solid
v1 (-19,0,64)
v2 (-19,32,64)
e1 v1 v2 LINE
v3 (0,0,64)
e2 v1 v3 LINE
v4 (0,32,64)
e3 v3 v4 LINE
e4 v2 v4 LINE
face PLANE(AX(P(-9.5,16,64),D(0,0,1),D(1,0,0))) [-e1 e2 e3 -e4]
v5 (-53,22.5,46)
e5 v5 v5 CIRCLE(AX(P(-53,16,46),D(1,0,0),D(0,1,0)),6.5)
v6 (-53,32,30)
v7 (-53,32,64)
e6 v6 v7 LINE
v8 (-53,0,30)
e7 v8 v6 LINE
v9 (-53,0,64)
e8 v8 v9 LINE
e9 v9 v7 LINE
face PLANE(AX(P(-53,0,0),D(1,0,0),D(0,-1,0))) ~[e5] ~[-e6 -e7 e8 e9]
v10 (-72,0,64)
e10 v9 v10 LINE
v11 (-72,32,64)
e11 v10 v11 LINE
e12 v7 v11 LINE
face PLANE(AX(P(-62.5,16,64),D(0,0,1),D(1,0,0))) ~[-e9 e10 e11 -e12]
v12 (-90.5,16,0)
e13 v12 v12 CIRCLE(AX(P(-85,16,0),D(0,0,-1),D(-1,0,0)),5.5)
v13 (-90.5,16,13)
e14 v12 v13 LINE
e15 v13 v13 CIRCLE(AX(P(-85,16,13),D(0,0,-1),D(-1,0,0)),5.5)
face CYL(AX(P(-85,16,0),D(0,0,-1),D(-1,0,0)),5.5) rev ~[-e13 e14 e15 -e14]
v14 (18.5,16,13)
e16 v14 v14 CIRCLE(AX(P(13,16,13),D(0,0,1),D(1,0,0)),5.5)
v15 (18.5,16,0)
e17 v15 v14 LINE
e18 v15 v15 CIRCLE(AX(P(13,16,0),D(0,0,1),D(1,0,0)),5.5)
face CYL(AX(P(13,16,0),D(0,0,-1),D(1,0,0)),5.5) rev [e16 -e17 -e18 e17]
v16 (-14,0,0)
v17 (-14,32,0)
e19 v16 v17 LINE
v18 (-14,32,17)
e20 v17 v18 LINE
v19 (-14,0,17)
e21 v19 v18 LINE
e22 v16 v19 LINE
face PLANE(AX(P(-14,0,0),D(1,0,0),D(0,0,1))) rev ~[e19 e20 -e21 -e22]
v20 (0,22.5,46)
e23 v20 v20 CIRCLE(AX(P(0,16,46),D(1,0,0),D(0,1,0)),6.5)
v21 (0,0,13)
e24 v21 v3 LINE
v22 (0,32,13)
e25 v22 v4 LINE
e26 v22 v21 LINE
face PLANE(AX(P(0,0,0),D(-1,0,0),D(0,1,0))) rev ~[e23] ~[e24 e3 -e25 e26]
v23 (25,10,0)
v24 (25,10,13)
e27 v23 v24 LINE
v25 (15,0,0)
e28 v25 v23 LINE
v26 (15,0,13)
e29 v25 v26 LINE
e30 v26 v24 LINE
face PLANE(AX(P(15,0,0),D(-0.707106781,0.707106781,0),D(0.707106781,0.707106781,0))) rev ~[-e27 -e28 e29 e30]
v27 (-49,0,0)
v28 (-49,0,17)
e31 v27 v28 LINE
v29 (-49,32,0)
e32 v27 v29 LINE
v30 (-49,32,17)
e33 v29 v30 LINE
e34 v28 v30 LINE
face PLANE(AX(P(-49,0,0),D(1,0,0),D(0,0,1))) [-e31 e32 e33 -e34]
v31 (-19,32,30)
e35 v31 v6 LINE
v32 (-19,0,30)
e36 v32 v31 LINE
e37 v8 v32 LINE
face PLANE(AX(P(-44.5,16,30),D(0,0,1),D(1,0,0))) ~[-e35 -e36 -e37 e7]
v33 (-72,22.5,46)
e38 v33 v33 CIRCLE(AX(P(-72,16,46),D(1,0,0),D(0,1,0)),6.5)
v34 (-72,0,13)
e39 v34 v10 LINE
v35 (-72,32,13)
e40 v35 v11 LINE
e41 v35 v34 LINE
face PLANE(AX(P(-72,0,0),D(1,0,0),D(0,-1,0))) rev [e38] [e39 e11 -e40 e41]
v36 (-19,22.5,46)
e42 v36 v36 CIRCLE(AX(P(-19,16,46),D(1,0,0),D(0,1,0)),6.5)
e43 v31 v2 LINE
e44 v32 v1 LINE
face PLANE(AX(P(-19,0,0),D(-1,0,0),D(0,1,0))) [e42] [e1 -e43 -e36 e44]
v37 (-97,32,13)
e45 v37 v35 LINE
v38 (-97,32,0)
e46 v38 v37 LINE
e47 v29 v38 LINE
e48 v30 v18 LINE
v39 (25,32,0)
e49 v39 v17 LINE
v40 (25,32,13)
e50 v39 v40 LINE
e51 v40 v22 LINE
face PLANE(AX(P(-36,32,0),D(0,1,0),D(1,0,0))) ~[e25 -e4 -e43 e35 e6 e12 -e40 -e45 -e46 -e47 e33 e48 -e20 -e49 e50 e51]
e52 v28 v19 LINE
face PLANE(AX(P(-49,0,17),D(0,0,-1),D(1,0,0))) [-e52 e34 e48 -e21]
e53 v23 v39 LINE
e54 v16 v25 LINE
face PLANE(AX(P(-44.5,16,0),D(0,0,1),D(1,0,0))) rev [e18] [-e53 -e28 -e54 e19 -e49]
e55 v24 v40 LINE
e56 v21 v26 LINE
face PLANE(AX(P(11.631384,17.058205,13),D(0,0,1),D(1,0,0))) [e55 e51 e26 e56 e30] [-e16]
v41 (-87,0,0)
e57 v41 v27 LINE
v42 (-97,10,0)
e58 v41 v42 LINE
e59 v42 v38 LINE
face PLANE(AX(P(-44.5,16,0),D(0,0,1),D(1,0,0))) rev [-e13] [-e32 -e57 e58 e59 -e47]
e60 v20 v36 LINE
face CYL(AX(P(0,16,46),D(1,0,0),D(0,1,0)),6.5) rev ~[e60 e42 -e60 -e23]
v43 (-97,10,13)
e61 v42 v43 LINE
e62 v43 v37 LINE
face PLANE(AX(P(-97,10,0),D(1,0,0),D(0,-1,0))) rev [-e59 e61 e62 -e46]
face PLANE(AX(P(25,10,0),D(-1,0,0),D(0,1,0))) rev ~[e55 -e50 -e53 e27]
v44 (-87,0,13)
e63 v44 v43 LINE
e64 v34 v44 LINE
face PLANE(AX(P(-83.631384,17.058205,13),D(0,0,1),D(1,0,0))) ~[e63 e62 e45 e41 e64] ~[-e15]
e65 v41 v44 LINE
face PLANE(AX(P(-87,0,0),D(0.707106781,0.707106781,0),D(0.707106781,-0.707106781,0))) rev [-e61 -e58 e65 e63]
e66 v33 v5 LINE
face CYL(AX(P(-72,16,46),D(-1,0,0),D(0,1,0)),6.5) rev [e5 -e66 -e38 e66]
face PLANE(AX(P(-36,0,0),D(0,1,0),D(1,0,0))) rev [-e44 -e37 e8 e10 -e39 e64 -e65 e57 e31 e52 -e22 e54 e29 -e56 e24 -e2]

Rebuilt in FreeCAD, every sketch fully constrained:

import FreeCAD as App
import Part
import Sketcher


def add_polygon(sketch, points):
    """Adds a closed chain of lines whose ends are joined by coincident constraints."""
    first, n = sketch.GeometryCount, len(points)
    for a, b in zip(points, points[1:] + points[:1]):
        sketch.addGeometry(Part.LineSegment(App.Vector(*a, 0), App.Vector(*b, 0)), False)
    for i in range(n):
        sketch.addConstraint(Sketcher.Constraint("Coincident", first + i, 2, first + (i + 1) % n, 1))

doc = App.newDocument("Part")
body = doc.addObject("PartDesign::Body", "Body")

# Sketch on XY plane
sketch1 = doc.addObject("Sketcher::SketchObject", "Sketch")
body.addObject(sketch1)
sketch1.AttachmentSupport = (doc.XY_Plane, [""])
sketch1.MapMode = "FlatFace"
add_polygon(sketch1, [(0, 32), (0, 0), (15, 0), (25, 10), (25, 32)])  # lines 0-4
sketch1.addGeometry(Part.Circle(App.Vector(13, 16, 0), App.Vector(0, 0, 1), 5.5), False)  # 5
sketch1.addConstraint(Sketcher.Constraint("Vertical", 0))
sketch1.addConstraint(Sketcher.Constraint("Horizontal", 1))
sketch1.addConstraint(Sketcher.Constraint("Vertical", 3))
sketch1.addConstraint(Sketcher.Constraint("Horizontal", 4))
sketch1.addConstraint(Sketcher.Constraint("Coincident", 0, 2, -1, 1))
sketch1.addConstraint(Sketcher.Constraint("Diameter", 5, 11.0))
sketch1.addConstraint(Sketcher.Constraint("DistanceX", 1, 1, 1, 2, 15.0))
sketch1.addConstraint(Sketcher.Constraint("DistanceX", 4, 2, 4, 1, 25.0))
sketch1.addConstraint(Sketcher.Constraint("DistanceY", 0, 2, 0, 1, 32.0))
sketch1.addConstraint(Sketcher.Constraint("DistanceY", 3, 1, 3, 2, 22.0))
sketch1.addConstraint(Sketcher.Constraint("DistanceX", -1, 1, 5, 3, 13.0))
sketch1.addConstraint(Sketcher.Constraint("DistanceY", -1, 1, 5, 3, 16.0))
pad1 = doc.addObject("PartDesign::Pad", "Pad")
body.addObject(pad1)
pad1.Profile = sketch1
pad1.Length = 13

# Sketch on XY plane
sketch2 = doc.addObject("Sketcher::SketchObject", "Sketch001")
body.addObject(sketch2)
sketch2.AttachmentSupport = (doc.XY_Plane, [""])
sketch2.MapMode = "FlatFace"
add_polygon(sketch2, [(-19, 32), (-19, 0), (0, 0), (0, 32)])  # lines 0-3
sketch2.addConstraint(Sketcher.Constraint("Vertical", 0))
sketch2.addConstraint(Sketcher.Constraint("Horizontal", 1))
sketch2.addConstraint(Sketcher.Constraint("Vertical", 2))
sketch2.addConstraint(Sketcher.Constraint("Horizontal", 3))
sketch2.addConstraint(Sketcher.Constraint("Coincident", 1, 2, -1, 1))
sketch2.addConstraint(Sketcher.Constraint("DistanceX", 1, 1, 1, 2, 19.0))
sketch2.addConstraint(Sketcher.Constraint("DistanceY", 0, 2, 0, 1, 32.0))
pad2 = doc.addObject("PartDesign::Pad", "Pad001")
body.addObject(pad2)
pad2.Profile = sketch2
pad2.Length = 64

# Sketch on YZ plane
sketch3 = doc.addObject("Sketcher::SketchObject", "Sketch002")
body.addObject(sketch3)
sketch3.AttachmentSupport = (doc.YZ_Plane, [""])
sketch3.MapMode = "FlatFace"
sketch3.addGeometry(Part.Circle(App.Vector(16, 46, 0), App.Vector(0, 0, 1), 6.5), False)
sketch3.addConstraint(Sketcher.Constraint("Diameter", 0, 13.0))
sketch3.addConstraint(Sketcher.Constraint("DistanceX", -1, 1, 0, 3, 16.0))
sketch3.addConstraint(Sketcher.Constraint("DistanceY", -1, 1, 0, 3, 46.0))
pocket1 = doc.addObject("PartDesign::Pocket", "Pocket")
body.addObject(pocket1)
pocket1.Profile = sketch3
pocket1.Type = "ThroughAll"

# Sketch on XY plane
sketch4 = doc.addObject("Sketcher::SketchObject", "Sketch003")
body.addObject(sketch4)
sketch4.AttachmentSupport = (doc.XY_Plane, [""])
sketch4.MapMode = "FlatFace"
add_polygon(sketch4, [(-36, 32), (-36, 0), (-19, 0), (-19, 32)])  # lines 0-3
sketch4.addConstraint(Sketcher.Constraint("Vertical", 0))
sketch4.addConstraint(Sketcher.Constraint("Horizontal", 1))
sketch4.addConstraint(Sketcher.Constraint("Vertical", 2))
sketch4.addConstraint(Sketcher.Constraint("Horizontal", 3))
sketch4.addConstraint(Sketcher.Constraint("PointOnObject", 0, 2, -1))
sketch4.addConstraint(Sketcher.Constraint("DistanceX", 1, 1, 1, 2, 17.0))
sketch4.addConstraint(Sketcher.Constraint("DistanceY", 0, 2, 0, 1, 32.0))
sketch4.addConstraint(Sketcher.Constraint("DistanceX", 0, 2, -1, 1, 36.0))
pad3 = doc.addObject("PartDesign::Pad", "Pad002")
body.addObject(pad3)
pad3.Profile = sketch4
pad3.Length = 30
body2 = doc.addObject("PartDesign::Body", "Body001")
doc.recompute()

body2.BaseFeature = body
doc.recompute()

mirroring = doc.addObject("Part::Mirroring", "Mirroring")
mirroring.Source = body
mirroring.Base = App.Vector(-36, 16, 15)
mirroring.Normal = App.Vector(-1, 0, 0)
body3 = doc.addObject("PartDesign::Body", "Body002")
body3.BaseFeature = mirroring
boolean = doc.addObject("PartDesign::Boolean", "Boolean")
body2.addObject(boolean)
boolean.Type = "Fuse"
boolean.addObjects([body3])
doc.recompute()

# Sketch on XZ plane
sketch5 = doc.addObject("Sketcher::SketchObject", "Sketch004")
body2.addObject(sketch5)
sketch5.AttachmentSupport = (doc.getObject("XZ_Plane001"), [""])
sketch5.MapMode = "FlatFace"
add_polygon(sketch5, [(-49, 17), (-49, 0), (-14, 0), (-14, 17)])  # lines 0-3
sketch5.addConstraint(Sketcher.Constraint("Vertical", 0))
sketch5.addConstraint(Sketcher.Constraint("Horizontal", 1))
sketch5.addConstraint(Sketcher.Constraint("Vertical", 2))
sketch5.addConstraint(Sketcher.Constraint("Horizontal", 3))
sketch5.addConstraint(Sketcher.Constraint("PointOnObject", 0, 2, -1))
sketch5.addConstraint(Sketcher.Constraint("DistanceX", 1, 1, 1, 2, 35.0))
sketch5.addConstraint(Sketcher.Constraint("DistanceY", 0, 2, 0, 1, 17.0))
sketch5.addConstraint(Sketcher.Constraint("DistanceX", 0, 2, -1, 1, 49.0))
pocket2 = doc.addObject("PartDesign::Pocket", "Pocket001")
body2.addObject(pocket2)
pocket2.Profile = sketch5
pocket2.Type = "ThroughAll"
mirroring.Visibility = False

doc.recompute()
